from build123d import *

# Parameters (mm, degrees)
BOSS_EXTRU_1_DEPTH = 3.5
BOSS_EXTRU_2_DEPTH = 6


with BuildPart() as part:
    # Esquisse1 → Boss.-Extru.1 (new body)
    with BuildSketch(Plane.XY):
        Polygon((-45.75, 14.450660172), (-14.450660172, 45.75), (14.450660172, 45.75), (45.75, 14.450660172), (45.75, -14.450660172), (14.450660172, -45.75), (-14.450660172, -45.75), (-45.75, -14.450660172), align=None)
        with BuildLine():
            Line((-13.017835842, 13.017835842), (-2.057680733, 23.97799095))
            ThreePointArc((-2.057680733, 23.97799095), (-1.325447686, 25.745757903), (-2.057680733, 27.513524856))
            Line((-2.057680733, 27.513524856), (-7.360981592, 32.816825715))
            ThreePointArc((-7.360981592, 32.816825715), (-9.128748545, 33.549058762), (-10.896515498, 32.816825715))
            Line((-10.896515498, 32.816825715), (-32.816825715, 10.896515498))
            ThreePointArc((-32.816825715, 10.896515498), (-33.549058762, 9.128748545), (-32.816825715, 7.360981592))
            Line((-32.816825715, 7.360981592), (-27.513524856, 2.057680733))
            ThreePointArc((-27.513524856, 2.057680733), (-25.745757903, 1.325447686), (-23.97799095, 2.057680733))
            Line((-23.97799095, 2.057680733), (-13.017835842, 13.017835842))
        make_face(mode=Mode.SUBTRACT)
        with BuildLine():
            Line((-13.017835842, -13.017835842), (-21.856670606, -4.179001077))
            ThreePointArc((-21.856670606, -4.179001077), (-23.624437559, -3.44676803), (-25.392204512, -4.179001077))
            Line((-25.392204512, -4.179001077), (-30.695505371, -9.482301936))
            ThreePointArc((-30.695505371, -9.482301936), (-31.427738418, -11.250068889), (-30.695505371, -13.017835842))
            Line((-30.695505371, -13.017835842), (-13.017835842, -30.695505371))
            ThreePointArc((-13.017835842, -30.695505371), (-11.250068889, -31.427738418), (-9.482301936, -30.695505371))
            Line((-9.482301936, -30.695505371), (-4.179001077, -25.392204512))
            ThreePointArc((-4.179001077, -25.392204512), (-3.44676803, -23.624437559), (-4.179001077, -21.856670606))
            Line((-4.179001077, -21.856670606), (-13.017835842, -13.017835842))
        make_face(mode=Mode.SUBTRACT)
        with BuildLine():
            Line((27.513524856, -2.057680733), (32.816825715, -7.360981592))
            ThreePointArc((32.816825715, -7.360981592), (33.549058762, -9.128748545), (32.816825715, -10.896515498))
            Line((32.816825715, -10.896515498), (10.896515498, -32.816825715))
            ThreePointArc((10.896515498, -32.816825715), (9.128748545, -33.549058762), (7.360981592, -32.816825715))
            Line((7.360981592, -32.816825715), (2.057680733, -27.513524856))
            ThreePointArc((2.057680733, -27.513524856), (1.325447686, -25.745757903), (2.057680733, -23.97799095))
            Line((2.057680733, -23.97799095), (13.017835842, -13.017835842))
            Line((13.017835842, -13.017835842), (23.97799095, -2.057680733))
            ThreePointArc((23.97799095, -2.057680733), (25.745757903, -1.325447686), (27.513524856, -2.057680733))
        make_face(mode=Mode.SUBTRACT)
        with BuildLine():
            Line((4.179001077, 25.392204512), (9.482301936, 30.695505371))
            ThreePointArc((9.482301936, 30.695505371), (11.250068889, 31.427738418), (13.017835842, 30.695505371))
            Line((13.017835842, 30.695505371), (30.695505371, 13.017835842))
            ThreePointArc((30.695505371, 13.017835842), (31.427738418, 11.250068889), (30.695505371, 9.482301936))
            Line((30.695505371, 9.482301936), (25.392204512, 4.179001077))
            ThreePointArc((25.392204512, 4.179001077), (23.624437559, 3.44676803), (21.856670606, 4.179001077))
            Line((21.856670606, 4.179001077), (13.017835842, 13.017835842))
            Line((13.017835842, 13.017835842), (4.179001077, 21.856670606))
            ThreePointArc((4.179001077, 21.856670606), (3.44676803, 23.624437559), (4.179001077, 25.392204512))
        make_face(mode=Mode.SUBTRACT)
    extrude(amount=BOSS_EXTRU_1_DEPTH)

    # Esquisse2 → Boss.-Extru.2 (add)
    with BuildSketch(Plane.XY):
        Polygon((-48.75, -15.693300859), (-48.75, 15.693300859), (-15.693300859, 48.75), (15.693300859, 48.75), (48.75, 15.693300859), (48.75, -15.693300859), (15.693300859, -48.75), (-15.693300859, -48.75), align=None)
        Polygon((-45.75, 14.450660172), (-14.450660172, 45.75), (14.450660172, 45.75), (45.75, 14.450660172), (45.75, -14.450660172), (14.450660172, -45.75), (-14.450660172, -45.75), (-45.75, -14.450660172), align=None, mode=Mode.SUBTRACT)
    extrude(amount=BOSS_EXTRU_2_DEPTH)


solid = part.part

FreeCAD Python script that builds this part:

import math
import FreeCAD as App
import Part
import Sketcher
from FreeCAD import Vector
Q = App.Units.Quantity


def add_polygon(sketch, points):
    """Adds a closed chain of lines whose ends are joined by coincident constraints."""
    first, n = sketch.GeometryCount, len(points)
    for a, b in zip(points, points[1:] + points[:1]):
        sketch.addGeometry(Part.LineSegment(App.Vector(*a, 0), App.Vector(*b, 0)), False)
    for i in range(n):
        sketch.addConstraint(Sketcher.Constraint("Coincident", first + i, 2, first + (i + 1) % n, 1))

doc = App.newDocument("Part")
body = doc.addObject("PartDesign::Body", "Body")

# Sketch on XY plane
sketch1 = body.newObject("Sketcher::SketchObject", "Sketch")
sketch1.AttachmentSupport = (doc.getObject("XY_Plane"), [""])
sketch1.MapMode = "FlatFace"
add_polygon(sketch1, [(-14.45066, 45.75), (-45.75, 14.45066), (-45.75, -14.45066), (-14.45066, -45.75), (14.45066, -45.75), (45.75, -14.45066), (45.75, 14.45066), (14.45066, 45.75)])  # lines 0-7
sketch1.addGeometry(Part.LineSegment(Vector(27.513525, -2.057681, 0), Vector(32.816826, -7.360982, 0)), False)  # 8
sketch1.addGeometry(Part.ArcOfCircle(Part.Circle(Vector(31.049059, -9.128749, 0), Vector(0, 0, 1), 2.5), math.radians(-45), math.radians(45)), False)  # 9
sketch1.addGeometry(Part.LineSegment(Vector(32.816826, -10.896515, 0), Vector(10.896515, -32.816826, 0)), False)  # 10
sketch1.addGeometry(Part.ArcOfCircle(Part.Circle(Vector(9.128749, -31.049059, 0), Vector(0, 0, 1), 2.5), math.radians(-135), math.radians(-45)), False)  # 11
sketch1.addGeometry(Part.LineSegment(Vector(7.360982, -32.816826, 0), Vector(2.057681, -27.513525, 0)), False)  # 12
sketch1.addGeometry(Part.ArcOfCircle(Part.Circle(Vector(3.825448, -25.745758, 0), Vector(0, 0, 1), 2.5), math.radians(135), math.radians(225)), False)  # 13
sketch1.addGeometry(Part.LineSegment(Vector(2.057681, -23.977991, 0), Vector(13.017836, -13.017836, 0)), False)  # 14
sketch1.addGeometry(Part.LineSegment(Vector(13.017836, -13.017836, 0), Vector(23.977991, -2.057681, 0)), False)  # 15
sketch1.addGeometry(Part.ArcOfCircle(Part.Circle(Vector(25.745758, -3.825448, 0), Vector(0, 0, 1), 2.5), math.radians(45), math.radians(135)), False)  # 16
sketch1.addGeometry(Part.LineSegment(Vector(-13.017836, -13.017836, 0), Vector(-4.179001, -21.856671, 0)), False)  # 17
sketch1.addGeometry(Part.ArcOfCircle(Part.Circle(Vector(-5.946768, -23.624438, 0), Vector(0, 0, 1), 2.5), math.radians(-45), math.radians(45)), False)  # 18
sketch1.addGeometry(Part.LineSegment(Vector(-4.179001, -25.392205, 0), Vector(-9.482302, -30.695505, 0)), False)  # 19
sketch1.addGeometry(Part.ArcOfCircle(Part.Circle(Vector(-11.250069, -28.927738, 0), Vector(0, 0, 1), 2.5), math.radians(-135), math.radians(-45)), False)  # 20
sketch1.addGeometry(Part.LineSegment(Vector(-13.017836, -30.695505, 0), Vector(-30.695505, -13.017836, 0)), False)  # 21
sketch1.addGeometry(Part.ArcOfCircle(Part.Circle(Vector(-28.927738, -11.250069, 0), Vector(0, 0, 1), 2.5), math.radians(135), math.radians(225)), False)  # 22
sketch1.addGeometry(Part.LineSegment(Vector(-30.695505, -9.482302, 0), Vector(-25.392205, -4.179001, 0)), False)  # 23
sketch1.addGeometry(Part.ArcOfCircle(Part.Circle(Vector(-23.624438, -5.946768, 0), Vector(0, 0, 1), 2.5), math.radians(45), math.radians(135)), False)  # 24
sketch1.addGeometry(Part.LineSegment(Vector(-21.856671, -4.179001, 0), Vector(-13.017836, -13.017836, 0)), False)  # 25
sketch1.addGeometry(Part.LineSegment(Vector(4.179001, 25.392205, 0), Vector(9.482302, 30.695505, 0)), False)  # 26
sketch1.addGeometry(Part.ArcOfCircle(Part.Circle(Vector(11.250069, 28.927738, 0), Vector(0, 0, 1), 2.5), math.radians(45), math.radians(135)), False)  # 27
sketch1.addGeometry(Part.LineSegment(Vector(13.017836, 30.695505, 0), Vector(30.695505, 13.017836, 0)), False)  # 28
sketch1.addGeometry(Part.ArcOfCircle(Part.Circle(Vector(28.927738, 11.250069, 0), Vector(0, 0, 1), 2.5), math.radians(-45), math.radians(45)), False)  # 29
sketch1.addGeometry(Part.LineSegment(Vector(30.695505, 9.482302, 0), Vector(25.392205, 4.179001, 0)), False)  # 30
sketch1.addGeometry(Part.ArcOfCircle(Part.Circle(Vector(23.624438, 5.946768, 0), Vector(0, 0, 1), 2.5), math.radians(-135), math.radians(-45)), False)  # 31
sketch1.addGeometry(Part.LineSegment(Vector(21.856671, 4.179001, 0), Vector(13.017836, 13.017836, 0)), False)  # 32
sketch1.addGeometry(Part.LineSegment(Vector(13.017836, 13.017836, 0), Vector(4.179001, 21.856671, 0)), False)  # 33
sketch1.addGeometry(Part.ArcOfCircle(Part.Circle(Vector(5.946768, 23.624438, 0), Vector(0, 0, 1), 2.5), math.radians(135), math.radians(225)), False)  # 34
sketch1.addGeometry(Part.LineSegment(Vector(-13.017836, 13.017836, 0), Vector(-23.977991, 2.057681, 0)), False)  # 35
sketch1.addGeometry(Part.ArcOfCircle(Part.Circle(Vector(-25.745758, 3.825448, 0), Vector(0, 0, 1), 2.5), math.radians(-135), math.radians(-45)), False)  # 36
sketch1.addGeometry(Part.LineSegment(Vector(-27.513525, 2.057681, 0), Vector(-32.816826, 7.360982, 0)), False)  # 37
sketch1.addGeometry(Part.ArcOfCircle(Part.Circle(Vector(-31.049059, 9.128749, 0), Vector(0, 0, 1), 2.5), math.radians(135), math.radians(225)), False)  # 38
sketch1.addGeometry(Part.LineSegment(Vector(-32.816826, 10.896515, 0), Vector(-10.896515, 32.816826, 0)), False)  # 39
sketch1.addGeometry(Part.ArcOfCircle(Part.Circle(Vector(-9.128749, 31.049059, 0), Vector(0, 0, 1), 2.5), math.radians(45), math.radians(135)), False)  # 40
sketch1.addGeometry(Part.LineSegment(Vector(-7.360982, 32.816826, 0), Vector(-2.057681, 27.513525, 0)), False)  # 41
sketch1.addGeometry(Part.ArcOfCircle(Part.Circle(Vector(-3.825448, 25.745758, 0), Vector(0, 0, 1), 2.5), math.radians(-45), math.radians(45)), False)  # 42
sketch1.addGeometry(Part.LineSegment(Vector(-2.057681, 23.977991, 0), Vector(-13.017836, 13.017836, 0)), False)  # 43
sketch1.addConstraint([
    Sketcher.Constraint("Tangent", 8, 2, 9, 2),
    Sketcher.Constraint("Tangent", 9, 1, 10, 1),
    Sketcher.Constraint("Tangent", 10, 2, 11, 2),
    Sketcher.Constraint("Tangent", 11, 1, 12, 1),
    Sketcher.Constraint("Tangent", 12, 2, 13, 2),
    Sketcher.Constraint("Tangent", 13, 1, 14, 1),
    Sketcher.Constraint("Coincident", 14, 2, 15, 1),
    Sketcher.Constraint("Tangent", 15, 2, 16, 2),
    Sketcher.Constraint("Tangent", 16, 1, 8, 1),
    Sketcher.Constraint("Tangent", 17, 2, 18, 2),
    Sketcher.Constraint("Tangent", 18, 1, 19, 1),
    Sketcher.Constraint("Tangent", 19, 2, 20, 2),
    Sketcher.Constraint("Tangent", 20, 1, 21, 1),
    Sketcher.Constraint("Tangent", 21, 2, 22, 2),
    Sketcher.Constraint("Tangent", 22, 1, 23, 1),
    Sketcher.Constraint("Tangent", 23, 2, 24, 2),
    Sketcher.Constraint("Tangent", 24, 1, 25, 1),
    Sketcher.Constraint("Coincident", 25, 2, 17, 1),
    Sketcher.Constraint("Tangent", 26, 2, 27, 2),
    Sketcher.Constraint("Tangent", 27, 1, 28, 1),
    Sketcher.Constraint("Tangent", 28, 2, 29, 2),
    Sketcher.Constraint("Tangent", 29, 1, 30, 1),
    Sketcher.Constraint("Tangent", 30, 2, 31, 2),
    Sketcher.Constraint("Tangent", 31, 1, 32, 1),
    Sketcher.Constraint("Coincident", 32, 2, 33, 1),
    Sketcher.Constraint("Tangent", 33, 2, 34, 2),
    Sketcher.Constraint("Tangent", 34, 1, 26, 1),
    Sketcher.Constraint("Tangent", 35, 2, 36, 2),
    Sketcher.Constraint("Tangent", 36, 1, 37, 1),
    Sketcher.Constraint("Tangent", 37, 2, 38, 2),
    Sketcher.Constraint("Tangent", 38, 1, 39, 1),
    Sketcher.Constraint("Tangent", 39, 2, 40, 2),
    Sketcher.Constraint("Tangent", 40, 1, 41, 1),
    Sketcher.Constraint("Tangent", 41, 2, 42, 2),
    Sketcher.Constraint("Tangent", 42, 1, 43, 1),
    Sketcher.Constraint("Coincident", 43, 2, 35, 1),
    Sketcher.Constraint("Vertical", 1),
    Sketcher.Constraint("Horizontal", 3),
    Sketcher.Constraint("Vertical", 5),
    Sketcher.Constraint("Horizontal", 7),
    Sketcher.Constraint("Equal", 9, 11),
    Sketcher.Constraint("Equal", 11, 13),
    Sketcher.Constraint("Equal", 13, 16),
    Sketcher.Constraint("Equal", 16, 18),
    Sketcher.Constraint("Equal", 18, 20),
    Sketcher.Constraint("Equal", 20, 22),
    Sketcher.Constraint("Equal", 22, 24),
    Sketcher.Constraint("Equal", 24, 27),
    Sketcher.Constraint("Equal", 27, 29),
    Sketcher.Constraint("Equal", 29, 31),
    Sketcher.Constraint("Equal", 31, 34),
    Sketcher.Constraint("Equal", 34, 36),
    Sketcher.Constraint("Equal", 36, 38),
    Sketcher.Constraint("Equal", 38, 40),
    Sketcher.Constraint("Equal", 40, 42),
    Sketcher.Constraint("Symmetric", 20, 3, 27, 3, -1, 1),
    Sketcher.Constraint("Symmetric", 22, 3, 29, 3, -1, 1),
    Sketcher.Constraint("Symmetric", 24, 3, 31, 3, -1, 1),
    Sketcher.Constraint("Symmetric", 18, 3, 34, 3, -1, 1),
    Sketcher.Constraint("Symmetric", 16, 3, 36, 3, -1, 1),
    Sketcher.Constraint("Symmetric", 9, 3, 38, 3, -1, 1),
    Sketcher.Constraint("Symmetric", 11, 3, 40, 3, -1, 1),
    Sketcher.Constraint("Symmetric", 13, 3, 42, 3, -1, 1),
    Sketcher.Constraint("Symmetric", 0, 2, 4, 2, -1, 1),
    Sketcher.Constraint("Symmetric", 2, 2, 6, 2, -1, 1),
    Sketcher.Constraint("Symmetric", 25, 2, 32, 2, -1, 1),
    Sketcher.Constraint("Symmetric", 14, 2, 43, 2, -1, 1),
    Sketcher.Constraint("Symmetric", 14, 2, 25, 2, -2),
    Sketcher.Constraint("Perpendicular", 0, 2),
    Sketcher.Constraint("Perpendicular", 2, 4),
    Sketcher.Constraint("Perpendicular", 4, 6),
    Sketcher.Constraint("Parallel", 6, 8),
    Sketcher.Constraint("Perpendicular", 8, 10),
    Sketcher.Constraint("Perpendicular", 10, 12),
    Sketcher.Constraint("Perpendicular", 12, 14),
    Sketcher.Constraint("Parallel", 14, 15),
    Sketcher.Constraint("Perpendicular", 15, 17),
    Sketcher.Constraint("Perpendicular", 17, 19),
    Sketcher.Constraint("Perpendicular", 19, 21),
    Sketcher.Constraint("Perpendicular", 21, 23),
    Sketcher.Constraint("Perpendicular", 23, 25),
    Sketcher.Constraint("Horizontal", 1, 2, 4, 2),
    Sketcher.Constraint("Horizontal", 10, 2, 11, 1),
    Sketcher.Constraint("Horizontal", 14, 2, 21, 2),
    Sketcher.Constraint("Vertical", 20, 1, 25, 2),
    Sketcher.Constraint("Equal", 7, 1),
    Sketcher.Constraint("Equal", 14, 15),
    Sketcher.Constraint("Equal", 12, 19),
    Sketcher.Constraint("Radius", 9, Q("2.5 mm")),
    Sketcher.Constraint("Distance", 10, Q("31 mm")),
    Sketcher.Constraint("Distance", 21, Q("25 mm")),
    Sketcher.Constraint("DistanceX", 0, 2, -1, 1, Q("45.75 mm")),
    Sketcher.Constraint("DistanceX", 17, 2, -1, 1, Q("4.179001 mm")),
    Sketcher.Constraint("DistanceY", 23, 2, -1, 1, Q("4.179001 mm")),
    Sketcher.Constraint("DistanceX", 3, 1, 3, 2, Q("28.90132 mm")),
])
pad1 = body.newObject("PartDesign::Pad", "Pad")
pad1.Profile = sketch1
pad1.Length = 3.5

# Sketch on XY plane
sketch2 = body.newObject("Sketcher::SketchObject", "Sketch001")
sketch2.AttachmentSupport = (doc.getObject("XY_Plane"), [""])
sketch2.MapMode = "FlatFace"
add_polygon(sketch2, [(-48.75, 15.693301), (-48.75, -15.693301), (-15.693301, -48.75), (15.693301, -48.75), (48.75, -15.693301), (48.75, 15.693301), (15.693301, 48.75), (-15.693301, 48.75)])  # lines 0-7
add_polygon(sketch2, [(-45.75, 14.45066), (-14.45066, 45.75), (14.45066, 45.75), (45.75, 14.45066), (45.75, -14.45066), (14.45066, -45.75), (-14.45066, -45.75), (-45.75, -14.45066)])  # lines 8-15
sketch2.addConstraint([
    Sketcher.Constraint("Vertical", 0),
    Sketcher.Constraint("Horizontal", 2),
    Sketcher.Constraint("Vertical", 4),
    Sketcher.Constraint("Horizontal", 6),
    Sketcher.Constraint("Horizontal", 9),
    Sketcher.Constraint("Vertical", 11),
    Sketcher.Constraint("Horizontal", 13),
    Sketcher.Constraint("Vertical", 15),
    Sketcher.Constraint("Symmetric", 0, 2, 4, 2, -1, 1),
    Sketcher.Constraint("Symmetric", 1, 2, 5, 2, -1, 1),
    Sketcher.Constraint("Symmetric", 8, 2, 12, 2, -1, 1),
    Sketcher.Constraint("Symmetric", 10, 2, 14, 2, -1, 1),
    Sketcher.Constraint("Perpendicular", 1, 3),
    Sketcher.Constraint("Perpendicular", 5, 7),
    Sketcher.Constraint("Parallel", 7, 8),
    Sketcher.Constraint("Perpendicular", 8, 10),
    Sketcher.Constraint("Perpendicular", 10, 12),
    Sketcher.Constraint("Perpendicular", 12, 14),
    Sketcher.Constraint("Horizontal", 0, 2, 3, 2),
    Sketcher.Constraint("Horizontal", 4, 2, 7, 2),
    Sketcher.Constraint("Horizontal", 11, 2, 14, 2),
    Sketcher.Constraint("Vertical", 2, 2, 5, 2),
    Sketcher.Constraint("Equal", 6, 0),
    Sketcher.Constraint("Equal", 13, 11),
    Sketcher.Constraint("DistanceY", 8, 2, 6, 2, Q("3 mm")),
    Sketcher.Constraint("DistanceX", 0, 2, 3, 2, Q("97.5 mm")),
    Sketcher.Constraint("DistanceX", 2, 1, 2, 2, Q("31.386602 mm")),
    Sketcher.Constraint("DistanceX", 9, 1, 9, 2, Q("28.90132 mm")),
])
pad2 = body.newObject("PartDesign::Pad", "Pad001")
pad2.Profile = sketch2
pad2.Length = 6

doc.recompute()
